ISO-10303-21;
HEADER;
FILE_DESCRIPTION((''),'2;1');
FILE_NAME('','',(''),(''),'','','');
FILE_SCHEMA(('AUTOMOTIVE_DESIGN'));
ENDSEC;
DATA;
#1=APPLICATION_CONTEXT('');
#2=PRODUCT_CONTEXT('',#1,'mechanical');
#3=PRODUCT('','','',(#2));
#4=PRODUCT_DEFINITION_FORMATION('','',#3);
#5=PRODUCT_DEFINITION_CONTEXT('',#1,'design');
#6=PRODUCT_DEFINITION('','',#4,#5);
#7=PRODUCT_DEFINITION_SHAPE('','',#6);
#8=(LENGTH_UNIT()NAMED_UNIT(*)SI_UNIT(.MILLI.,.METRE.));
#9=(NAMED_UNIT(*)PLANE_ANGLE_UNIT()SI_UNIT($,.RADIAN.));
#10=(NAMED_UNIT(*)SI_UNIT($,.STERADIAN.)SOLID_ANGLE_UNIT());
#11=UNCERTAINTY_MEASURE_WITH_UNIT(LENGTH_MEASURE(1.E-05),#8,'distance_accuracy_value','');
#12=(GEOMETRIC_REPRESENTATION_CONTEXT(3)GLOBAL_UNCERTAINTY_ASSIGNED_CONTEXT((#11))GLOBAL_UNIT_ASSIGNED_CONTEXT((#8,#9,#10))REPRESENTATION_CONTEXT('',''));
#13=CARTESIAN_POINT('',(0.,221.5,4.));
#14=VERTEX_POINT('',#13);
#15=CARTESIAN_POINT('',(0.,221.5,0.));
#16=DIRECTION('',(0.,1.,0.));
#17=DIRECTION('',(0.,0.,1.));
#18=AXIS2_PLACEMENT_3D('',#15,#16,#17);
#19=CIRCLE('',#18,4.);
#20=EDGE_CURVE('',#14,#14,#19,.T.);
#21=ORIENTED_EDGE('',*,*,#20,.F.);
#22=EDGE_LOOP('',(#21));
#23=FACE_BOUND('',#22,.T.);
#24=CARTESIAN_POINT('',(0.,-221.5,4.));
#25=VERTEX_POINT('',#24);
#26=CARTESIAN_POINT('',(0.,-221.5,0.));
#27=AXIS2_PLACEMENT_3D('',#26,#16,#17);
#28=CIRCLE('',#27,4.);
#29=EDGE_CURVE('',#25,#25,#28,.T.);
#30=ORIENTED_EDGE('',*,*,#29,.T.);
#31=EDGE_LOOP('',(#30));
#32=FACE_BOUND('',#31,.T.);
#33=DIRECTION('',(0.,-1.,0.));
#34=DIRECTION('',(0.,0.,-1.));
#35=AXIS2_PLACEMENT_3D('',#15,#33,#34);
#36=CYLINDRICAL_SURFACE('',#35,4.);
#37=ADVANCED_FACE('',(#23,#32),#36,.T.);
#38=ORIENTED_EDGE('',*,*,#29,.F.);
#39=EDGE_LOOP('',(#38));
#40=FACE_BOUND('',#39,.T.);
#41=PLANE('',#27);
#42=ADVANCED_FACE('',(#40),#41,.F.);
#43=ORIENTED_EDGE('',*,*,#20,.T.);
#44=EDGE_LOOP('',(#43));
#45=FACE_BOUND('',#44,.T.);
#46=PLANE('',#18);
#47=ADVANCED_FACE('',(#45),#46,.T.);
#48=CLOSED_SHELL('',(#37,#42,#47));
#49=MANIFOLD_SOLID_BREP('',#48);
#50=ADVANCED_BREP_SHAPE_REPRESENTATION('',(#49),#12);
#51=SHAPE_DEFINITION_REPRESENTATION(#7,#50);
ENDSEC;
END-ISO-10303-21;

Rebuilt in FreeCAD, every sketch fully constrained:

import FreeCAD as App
import Part
import Sketcher

V = App.Vector

doc = App.newDocument("Part")
body = doc.addObject("PartDesign::Body", "Body")

sketch1 = doc.addObject("Sketcher::SketchObject", "Sketch")
body.addObject(sketch1)
sketch1.AttachmentSupport = (doc.XZ_Plane, [""])
sketch1.MapMode = "FlatFace"
sketch1.addGeometry(Part.Circle(V(0, 0, 0), V(0, 0, 1), 4), False)
sketch1.addConstraint([
    Sketcher.Constraint("Coincident", 0, 3, -1, 1),
    Sketcher.Constraint("Diameter", 0, 8.0),
])
pad1 = doc.addObject("PartDesign::Pad", "Pad")
body.addObject(pad1)
pad1.Profile = sketch1
pad1.Length = 443
pad1.Midplane = True

doc.recompute()
